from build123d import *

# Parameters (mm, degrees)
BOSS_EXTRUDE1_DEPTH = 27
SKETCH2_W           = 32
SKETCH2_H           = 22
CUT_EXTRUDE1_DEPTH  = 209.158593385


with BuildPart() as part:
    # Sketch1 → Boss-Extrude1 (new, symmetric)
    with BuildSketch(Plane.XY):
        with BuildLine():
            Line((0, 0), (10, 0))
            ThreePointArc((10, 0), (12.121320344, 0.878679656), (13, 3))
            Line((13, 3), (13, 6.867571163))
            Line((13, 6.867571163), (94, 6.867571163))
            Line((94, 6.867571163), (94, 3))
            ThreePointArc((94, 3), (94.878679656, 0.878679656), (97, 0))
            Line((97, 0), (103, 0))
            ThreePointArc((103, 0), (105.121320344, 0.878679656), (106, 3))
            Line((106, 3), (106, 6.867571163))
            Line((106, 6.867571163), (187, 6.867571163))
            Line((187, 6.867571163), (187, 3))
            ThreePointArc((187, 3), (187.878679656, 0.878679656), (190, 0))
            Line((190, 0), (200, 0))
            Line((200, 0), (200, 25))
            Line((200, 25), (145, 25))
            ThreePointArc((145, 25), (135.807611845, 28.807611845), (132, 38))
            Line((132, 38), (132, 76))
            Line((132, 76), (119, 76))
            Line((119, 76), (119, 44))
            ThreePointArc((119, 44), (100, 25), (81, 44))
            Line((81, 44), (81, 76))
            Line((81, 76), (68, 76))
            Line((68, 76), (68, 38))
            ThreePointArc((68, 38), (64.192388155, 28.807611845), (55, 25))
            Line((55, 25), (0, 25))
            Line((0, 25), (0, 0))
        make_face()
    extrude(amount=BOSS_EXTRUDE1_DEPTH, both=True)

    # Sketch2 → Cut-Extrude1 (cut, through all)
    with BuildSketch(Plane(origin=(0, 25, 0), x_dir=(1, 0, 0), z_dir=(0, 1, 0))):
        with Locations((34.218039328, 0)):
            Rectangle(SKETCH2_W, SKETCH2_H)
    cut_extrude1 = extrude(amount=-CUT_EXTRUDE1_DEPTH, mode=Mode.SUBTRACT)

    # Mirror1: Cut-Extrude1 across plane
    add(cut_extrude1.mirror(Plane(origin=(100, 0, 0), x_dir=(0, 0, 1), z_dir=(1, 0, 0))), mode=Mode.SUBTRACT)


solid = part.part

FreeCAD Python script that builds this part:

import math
import FreeCAD as App
import Part
import Sketcher
from FreeCAD import Vector
Q = App.Units.Quantity


def add_polygon(sketch, points):
    """Adds a closed chain of lines whose ends are joined by coincident constraints."""
    first, n = sketch.GeometryCount, len(points)
    for a, b in zip(points, points[1:] + points[:1]):
        sketch.addGeometry(Part.LineSegment(App.Vector(*a, 0), App.Vector(*b, 0)), False)
    for i in range(n):
        sketch.addConstraint(Sketcher.Constraint("Coincident", first + i, 2, first + (i + 1) % n, 1))

doc = App.newDocument("Part")
body = doc.addObject("PartDesign::Body", "Body")

sketch1 = body.newObject("Sketcher::SketchObject", "Sketch")
sketch1.AttachmentSupport = (doc.getObject("XY_Plane"), [""])
sketch1.MapMode = "FlatFace"
sketch1.addGeometry([
    Part.LineSegment(Vector(0, 0, 0), Vector(10, 0, 0)),
    Part.ArcOfCircle(Part.Circle(Vector(10, 3, 0), Vector(0, 0, 1), 3), math.radians(-90), math.radians(0)),
    Part.LineSegment(Vector(13, 3, 0), Vector(13, 6.9, 0)),
    Part.LineSegment(Vector(13, 6.9, 0), Vector(94, 6.9, 0)),
    Part.LineSegment(Vector(94, 6.9, 0), Vector(94, 3, 0)),
    Part.ArcOfCircle(Part.Circle(Vector(97, 3, 0), Vector(0, 0, 1), 3), math.radians(180), math.radians(270)),
    Part.LineSegment(Vector(97, 0, 0), Vector(103, 0, 0)),
    Part.ArcOfCircle(Part.Circle(Vector(103, 3, 0), Vector(0, 0, 1), 3), math.radians(-90), math.radians(0)),
    Part.LineSegment(Vector(106, 3, 0), Vector(106, 6.9, 0)),
    Part.LineSegment(Vector(106, 6.9, 0), Vector(187, 6.9, 0)),
    Part.LineSegment(Vector(187, 6.9, 0), Vector(187, 3, 0)),
    Part.ArcOfCircle(Part.Circle(Vector(190, 3, 0), Vector(0, 0, 1), 3), math.radians(180), math.radians(270)),
    Part.LineSegment(Vector(190, 0, 0), Vector(200, 0, 0)),
    Part.LineSegment(Vector(200, 0, 0), Vector(200, 25, 0)),
    Part.LineSegment(Vector(200, 25, 0), Vector(145, 25, 0)),
    Part.ArcOfCircle(Part.Circle(Vector(145, 38, 0), Vector(0, 0, 1), 13), math.radians(-180), math.radians(-90)),
    Part.LineSegment(Vector(132, 38, 0), Vector(132, 76, 0)),
    Part.LineSegment(Vector(132, 76, 0), Vector(119, 76, 0)),
    Part.LineSegment(Vector(119, 76, 0), Vector(119, 44, 0)),
    Part.ArcOfCircle(Part.Circle(Vector(100, 44, 0), Vector(0, 0, 1), 19), math.radians(180), math.radians(360)),
    Part.LineSegment(Vector(81, 44, 0), Vector(81, 76, 0)),
    Part.LineSegment(Vector(81, 76, 0), Vector(68, 76, 0)),
    Part.LineSegment(Vector(68, 76, 0), Vector(68, 38, 0)),
    Part.ArcOfCircle(Part.Circle(Vector(55, 38, 0), Vector(0, 0, 1), 13), math.radians(-90), math.radians(0)),
    Part.LineSegment(Vector(55, 25, 0), Vector(0, 25, 0)),
    Part.LineSegment(Vector(0, 25, 0), Vector(0, 0, 0)),
], False)
sketch1.addConstraint([
    Sketcher.Constraint("Tangent", 0, 2, 1, 1),
    Sketcher.Constraint("Tangent", 1, 2, 2, 1),
    Sketcher.Constraint("Coincident", 2, 2, 3, 1),
    Sketcher.Constraint("Coincident", 3, 2, 4, 1),
    Sketcher.Constraint("Tangent", 4, 2, 5, 1),
    Sketcher.Constraint("Tangent", 5, 2, 6, 1),
    Sketcher.Constraint("Tangent", 6, 2, 7, 1),
    Sketcher.Constraint("Tangent", 7, 2, 8, 1),
    Sketcher.Constraint("Coincident", 8, 2, 9, 1),
    Sketcher.Constraint("Coincident", 9, 2, 10, 1),
    Sketcher.Constraint("Tangent", 10, 2, 11, 1),
    Sketcher.Constraint("Tangent", 11, 2, 12, 1),
    Sketcher.Constraint("Coincident", 12, 2, 13, 1),
    Sketcher.Constraint("Coincident", 13, 2, 14, 1),
    Sketcher.Constraint("Tangent", 14, 2, 15, 2),
    Sketcher.Constraint("Tangent", 15, 1, 16, 1),
    Sketcher.Constraint("Coincident", 16, 2, 17, 1),
    Sketcher.Constraint("Coincident", 17, 2, 18, 1),
    Sketcher.Constraint("Tangent", 18, 2, 19, 2),
    Sketcher.Constraint("Tangent", 19, 1, 20, 1),
    Sketcher.Constraint("Coincident", 20, 2, 21, 1),
    Sketcher.Constraint("Coincident", 21, 2, 22, 1),
    Sketcher.Constraint("Tangent", 22, 2, 23, 2),
    Sketcher.Constraint("Tangent", 23, 1, 24, 1),
    Sketcher.Constraint("Coincident", 24, 2, 25, 1),
    Sketcher.Constraint("Coincident", 25, 2, 0, 1),
    Sketcher.Constraint("Horizontal", 0),
    Sketcher.Constraint("Vertical", 2),
    Sketcher.Constraint("Horizontal", 3),
    Sketcher.Constraint("Vertical", 4),
    Sketcher.Constraint("Horizontal", 6),
    Sketcher.Constraint("Vertical", 8),
    Sketcher.Constraint("Horizontal", 9),
    Sketcher.Constraint("Vertical", 10),
    Sketcher.Constraint("Horizontal", 12),
    Sketcher.Constraint("Vertical", 13),
    Sketcher.Constraint("Horizontal", 14),
    Sketcher.Constraint("Vertical", 16),
    Sketcher.Constraint("Horizontal", 17),
    Sketcher.Constraint("Vertical", 18),
    Sketcher.Constraint("Vertical", 20),
    Sketcher.Constraint("Horizontal", 21),
    Sketcher.Constraint("Vertical", 22),
    Sketcher.Constraint("Horizontal", 24),
    Sketcher.Constraint("Vertical", 25),
    Sketcher.Constraint("Coincident", 25, 2, -1, 1),
    Sketcher.Constraint("Equal", 1, 5),
    Sketcher.Constraint("Equal", 5, 7),
    Sketcher.Constraint("Equal", 7, 11),
    Sketcher.Constraint("Equal", 15, 23),
    Sketcher.Constraint("PointOnObject", 5, 2, -1),
    Sketcher.Constraint("PointOnObject", 11, 2, -1),
    Sketcher.Constraint("Horizontal", 15, 3, 23, 3),
    Sketcher.Constraint("Horizontal", 3, 2, 8, 2),
    Sketcher.Constraint("Horizontal", 17, 2, 20, 2),
    Sketcher.Constraint("Equal", 3, 9),
    Sketcher.Constraint("Equal", 0, 12),
    Sketcher.Constraint("Equal", 17, 21),
    Sketcher.Constraint("Equal", 14, 24),
    Sketcher.Constraint("Radius", 1, Q("3 mm")),
    Sketcher.Constraint("Radius", 15, Q("13 mm")),
    Sketcher.Constraint("Radius", 19, Q("19 mm")),
    Sketcher.Constraint("DistanceX", 0, 1, 0, 2, Q("10 mm")),
    Sketcher.Constraint("DistanceX", 3, 1, 3, 2, Q("81 mm")),
    Sketcher.Constraint("DistanceX", 6, 1, 6, 2, Q("6 mm")),
    Sketcher.Constraint("DistanceX", 14, 2, 14, 1, Q("55 mm")),
    Sketcher.Constraint("DistanceY", 13, 1, 13, 2, Q("25 mm")),
    Sketcher.Constraint("DistanceY", 16, 1, 16, 2, Q("38 mm")),
    Sketcher.Constraint("DistanceY", 18, 2, 18, 1, Q("32 mm")),
    Sketcher.Constraint("DistanceY", 2, 1, 2, 2, Q("3.867571 mm")),
])
pad1 = body.newObject("PartDesign::Pad", "Pad")
pad1.Profile = sketch1
pad1.Length = 54
pad1.Midplane = True

sketch2 = body.newObject("Sketcher::SketchObject", "Sketch001")
sketch2.AttachmentSupport = (doc.getObject("XZ_Plane"), [""])
sketch2.MapMode = "FlatFace"
sketch2.AttachmentOffset = App.Placement(Vector(0, 0, -25), App.Rotation())
add_polygon(sketch2, [(18, -11), (18, 11), (50, 11), (50, -11)])
sketch2.addConstraint([
    Sketcher.Constraint("Vertical", 0),
    Sketcher.Constraint("Horizontal", 1),
    Sketcher.Constraint("Vertical", 2),
    Sketcher.Constraint("Horizontal", 3),
    Sketcher.Constraint("DistanceX", 1, 1, 1, 2, Q("32 mm")),
    Sketcher.Constraint("DistanceY", 0, 1, 0, 2, Q("22 mm")),
    Sketcher.Constraint("DistanceY", -1, 1, 0, 2, Q("11 mm")),
    Sketcher.Constraint("DistanceX", -1, 1, 0, 2, Q("18.218039 mm")),
])
pocket1 = body.newObject("PartDesign::Pocket", "Pocket")
pocket1.Profile = sketch2
pocket1.Type = "ThroughAll"
pocket1.Reversed = True
doc.recompute()

datumplane = body.newObject("PartDesign::Plane", "DatumPlane")
datumplane.AttachmentSupport = (doc.getObject("YZ_Plane"), [""])
datumplane.MapMode = "FlatFace"
datumplane.AttachmentOffset = App.Placement(Vector(0, 0, 100), App.Rotation())
mirrored = body.newObject("PartDesign::Mirrored", "Mirrored")
mirrored.Originals = [pocket1]
mirrored.MirrorPlane = (datumplane, [""])
body.Tip = mirrored

doc.recompute()
